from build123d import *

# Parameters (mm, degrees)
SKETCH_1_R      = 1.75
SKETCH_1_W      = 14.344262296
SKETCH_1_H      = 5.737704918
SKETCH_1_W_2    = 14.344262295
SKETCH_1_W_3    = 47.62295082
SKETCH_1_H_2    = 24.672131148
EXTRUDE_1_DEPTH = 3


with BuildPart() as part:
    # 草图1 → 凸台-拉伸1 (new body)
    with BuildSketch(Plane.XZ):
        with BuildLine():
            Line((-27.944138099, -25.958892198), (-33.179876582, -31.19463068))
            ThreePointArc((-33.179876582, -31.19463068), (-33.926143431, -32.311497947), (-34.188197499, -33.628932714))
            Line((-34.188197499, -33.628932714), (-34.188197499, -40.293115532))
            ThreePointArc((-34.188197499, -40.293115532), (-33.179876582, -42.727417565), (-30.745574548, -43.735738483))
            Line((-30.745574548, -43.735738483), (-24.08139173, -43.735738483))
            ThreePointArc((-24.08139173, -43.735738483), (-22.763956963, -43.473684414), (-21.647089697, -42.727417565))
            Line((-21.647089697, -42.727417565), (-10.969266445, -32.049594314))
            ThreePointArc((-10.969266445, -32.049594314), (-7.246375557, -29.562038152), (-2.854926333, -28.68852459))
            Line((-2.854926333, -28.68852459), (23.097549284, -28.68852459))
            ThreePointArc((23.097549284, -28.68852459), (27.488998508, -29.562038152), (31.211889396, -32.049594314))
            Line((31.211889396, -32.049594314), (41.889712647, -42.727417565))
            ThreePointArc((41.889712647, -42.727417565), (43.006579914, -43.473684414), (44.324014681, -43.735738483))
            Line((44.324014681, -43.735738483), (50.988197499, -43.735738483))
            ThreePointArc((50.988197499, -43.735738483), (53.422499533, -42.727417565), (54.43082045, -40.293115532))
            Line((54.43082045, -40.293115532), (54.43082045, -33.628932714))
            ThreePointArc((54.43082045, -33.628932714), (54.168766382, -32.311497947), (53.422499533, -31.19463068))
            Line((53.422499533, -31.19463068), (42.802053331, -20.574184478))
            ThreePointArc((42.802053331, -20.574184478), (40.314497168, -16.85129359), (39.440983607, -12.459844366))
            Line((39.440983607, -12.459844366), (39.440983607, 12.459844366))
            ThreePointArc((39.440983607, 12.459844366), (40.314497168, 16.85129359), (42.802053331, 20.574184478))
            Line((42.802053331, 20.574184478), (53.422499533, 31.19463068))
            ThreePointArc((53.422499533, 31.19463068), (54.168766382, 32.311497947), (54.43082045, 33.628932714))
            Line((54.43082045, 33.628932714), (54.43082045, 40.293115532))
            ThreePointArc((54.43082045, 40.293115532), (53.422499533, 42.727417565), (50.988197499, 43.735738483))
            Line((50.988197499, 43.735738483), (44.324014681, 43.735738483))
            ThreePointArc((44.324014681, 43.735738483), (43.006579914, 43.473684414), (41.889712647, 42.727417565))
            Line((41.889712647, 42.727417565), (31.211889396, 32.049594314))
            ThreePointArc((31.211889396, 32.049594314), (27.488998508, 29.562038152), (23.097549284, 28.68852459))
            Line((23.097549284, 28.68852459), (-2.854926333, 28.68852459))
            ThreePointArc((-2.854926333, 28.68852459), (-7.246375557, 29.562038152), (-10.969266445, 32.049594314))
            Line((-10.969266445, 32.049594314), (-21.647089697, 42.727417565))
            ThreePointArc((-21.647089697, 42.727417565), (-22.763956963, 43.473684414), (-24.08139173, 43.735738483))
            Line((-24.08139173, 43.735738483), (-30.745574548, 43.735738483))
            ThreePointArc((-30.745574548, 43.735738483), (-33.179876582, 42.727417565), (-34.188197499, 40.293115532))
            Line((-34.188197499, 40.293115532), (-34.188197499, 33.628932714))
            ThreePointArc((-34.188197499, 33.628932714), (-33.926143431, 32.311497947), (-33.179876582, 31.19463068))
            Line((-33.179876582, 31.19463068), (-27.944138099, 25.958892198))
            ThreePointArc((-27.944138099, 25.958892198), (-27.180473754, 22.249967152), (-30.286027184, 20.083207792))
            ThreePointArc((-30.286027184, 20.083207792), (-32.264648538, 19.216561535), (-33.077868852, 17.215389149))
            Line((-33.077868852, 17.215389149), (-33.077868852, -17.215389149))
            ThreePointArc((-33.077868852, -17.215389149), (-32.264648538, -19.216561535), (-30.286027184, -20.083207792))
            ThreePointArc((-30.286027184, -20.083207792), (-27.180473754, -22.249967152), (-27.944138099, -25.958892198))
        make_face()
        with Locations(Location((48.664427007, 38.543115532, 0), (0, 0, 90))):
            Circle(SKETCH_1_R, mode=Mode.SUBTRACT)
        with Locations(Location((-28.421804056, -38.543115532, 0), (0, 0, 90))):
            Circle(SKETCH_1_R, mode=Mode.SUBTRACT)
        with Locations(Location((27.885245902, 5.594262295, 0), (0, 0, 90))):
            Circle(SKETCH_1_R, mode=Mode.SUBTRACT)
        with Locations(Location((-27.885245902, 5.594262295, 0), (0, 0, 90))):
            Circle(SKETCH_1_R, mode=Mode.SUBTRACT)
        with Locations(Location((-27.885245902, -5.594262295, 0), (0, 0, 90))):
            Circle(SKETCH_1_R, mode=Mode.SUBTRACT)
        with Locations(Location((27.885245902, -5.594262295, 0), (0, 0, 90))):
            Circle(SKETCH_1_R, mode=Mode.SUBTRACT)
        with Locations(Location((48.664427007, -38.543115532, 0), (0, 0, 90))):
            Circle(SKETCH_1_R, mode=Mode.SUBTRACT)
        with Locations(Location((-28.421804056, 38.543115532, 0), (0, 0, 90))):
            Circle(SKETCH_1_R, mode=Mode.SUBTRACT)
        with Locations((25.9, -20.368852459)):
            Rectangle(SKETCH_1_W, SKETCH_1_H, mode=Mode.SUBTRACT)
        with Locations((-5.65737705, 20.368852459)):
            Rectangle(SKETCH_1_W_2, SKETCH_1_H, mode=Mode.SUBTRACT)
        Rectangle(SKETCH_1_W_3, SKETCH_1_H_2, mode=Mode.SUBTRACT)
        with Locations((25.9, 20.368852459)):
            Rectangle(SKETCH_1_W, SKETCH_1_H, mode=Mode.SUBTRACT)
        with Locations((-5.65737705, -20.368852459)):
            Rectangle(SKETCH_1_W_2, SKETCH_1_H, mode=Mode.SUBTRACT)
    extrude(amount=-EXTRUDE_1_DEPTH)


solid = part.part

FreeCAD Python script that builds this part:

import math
import FreeCAD as App
import Part
import Sketcher
Q = App.Units.Quantity

doc = App.newDocument("Part")
params = doc.addObject("Spreadsheet::Sheet", "Params")
for row, (alias, value) in enumerate([
    ("sketch1_diameter", "3.5 mm"),
    ("pad1_length", "3 mm"),
], start=1):
    params.set(f"A{row}", alias)
    params.set(f"B{row}", "=" + value)
    params.setAlias(f"B{row}", alias)

body = doc.addObject("PartDesign::Body", "Body")

sketch1 = doc.addObject("Sketcher::SketchObject", "Sketch")
body.addObject(sketch1)
sketch1.AttachmentSupport = (doc.XZ_Plane, [""])
sketch1.MapMode = "FlatFace"
sketch1.addGeometry(Part.LineSegment(App.Vector(-27.9, -26, 0), App.Vector(-33.2, -31.2, 0)), False)
sketch1.addGeometry(Part.ArcOfCircle(Part.Circle(App.Vector(-30.7, -33.6, 0), App.Vector(0, 0, 1), 3.4), math.radians(135), math.radians(180)), False)
sketch1.addGeometry(Part.LineSegment(App.Vector(-34.2, -33.6, 0), App.Vector(-34.2, -40.3, 0)), False)
sketch1.addGeometry(Part.ArcOfCircle(Part.Circle(App.Vector(-30.7, -40.3, 0), App.Vector(0, 0, 1), 3.4), math.radians(-180), math.radians(-90)), False)
sketch1.addGeometry(Part.LineSegment(App.Vector(-30.7, -43.7, 0), App.Vector(-24.1, -43.7, 0)), False)
sketch1.addGeometry(Part.ArcOfCircle(Part.Circle(App.Vector(-24.1, -40.3, 0), App.Vector(0, 0, 1), 3.4), math.radians(-90), math.radians(-45)), False)
sketch1.addGeometry(Part.LineSegment(App.Vector(-21.6, -42.7, 0), App.Vector(-11, -32, 0)), False)
sketch1.addGeometry(Part.ArcOfCircle(Part.Circle(App.Vector(-2.9, -40.2, 0), App.Vector(0, 0, 1), 11.5), math.radians(90), math.radians(135)), False)
sketch1.addGeometry(Part.LineSegment(App.Vector(-2.9, -28.7, 0), App.Vector(23.1, -28.7, 0)), False)
sketch1.addGeometry(Part.ArcOfCircle(Part.Circle(App.Vector(23.1, -40.2, 0), App.Vector(0, 0, 1), 11.5), math.radians(45), math.radians(90)), False)
sketch1.addGeometry(Part.LineSegment(App.Vector(31.2, -32, 0), App.Vector(41.9, -42.7, 0)), False)
sketch1.addGeometry(Part.ArcOfCircle(Part.Circle(App.Vector(44.3, -40.3, 0), App.Vector(0, 0, 1), 3.4), math.radians(-135), math.radians(-90)), False)
sketch1.addGeometry(Part.LineSegment(App.Vector(44.3, -43.7, 0), App.Vector(51, -43.7, 0)), False)
sketch1.addGeometry(Part.ArcOfCircle(Part.Circle(App.Vector(51, -40.3, 0), App.Vector(0, 0, 1), 3.4), math.radians(-90), math.radians(0)), False)
sketch1.addGeometry(Part.LineSegment(App.Vector(54.4, -40.3, 0), App.Vector(54.4, -33.6, 0)), False)
sketch1.addGeometry(Part.ArcOfCircle(Part.Circle(App.Vector(51, -33.6, 0), App.Vector(0, 0, 1), 3.4), math.radians(0), math.radians(45)), False)
sketch1.addGeometry(Part.LineSegment(App.Vector(53.4, -31.2, 0), App.Vector(42.8, -20.6, 0)), False)
sketch1.addGeometry(Part.ArcOfCircle(Part.Circle(App.Vector(50.9, -12.5, 0), App.Vector(0, 0, 1), 11.5), math.radians(180), math.radians(225)), False)
sketch1.addGeometry(Part.LineSegment(App.Vector(39.4, -12.5, 0), App.Vector(39.4, 12.5, 0)), False)
sketch1.addGeometry(Part.ArcOfCircle(Part.Circle(App.Vector(50.9, 12.5, 0), App.Vector(0, 0, 1), 11.5), math.radians(135), math.radians(180)), False)
sketch1.addGeometry(Part.LineSegment(App.Vector(42.8, 20.6, 0), App.Vector(53.4, 31.2, 0)), False)
sketch1.addGeometry(Part.ArcOfCircle(Part.Circle(App.Vector(51, 33.6, 0), App.Vector(0, 0, 1), 3.4), math.radians(-45), math.radians(0)), False)
sketch1.addGeometry(Part.LineSegment(App.Vector(54.4, 33.6, 0), App.Vector(54.4, 40.3, 0)), False)
sketch1.addGeometry(Part.ArcOfCircle(Part.Circle(App.Vector(51, 40.3, 0), App.Vector(0, 0, 1), 3.4), math.radians(0), math.radians(90)), False)
sketch1.addGeometry(Part.LineSegment(App.Vector(51, 43.7, 0), App.Vector(44.3, 43.7, 0)), False)
sketch1.addGeometry(Part.ArcOfCircle(Part.Circle(App.Vector(44.3, 40.3, 0), App.Vector(0, 0, 1), 3.4), math.radians(90), math.radians(135)), False)
sketch1.addGeometry(Part.LineSegment(App.Vector(41.9, 42.7, 0), App.Vector(31.2, 32, 0)), False)
sketch1.addGeometry(Part.ArcOfCircle(Part.Circle(App.Vector(23.1, 40.2, 0), App.Vector(0, 0, 1), 11.5), math.radians(-90), math.radians(-45)), False)
sketch1.addGeometry(Part.LineSegment(App.Vector(23.1, 28.7, 0), App.Vector(-2.9, 28.7, 0)), False)
sketch1.addGeometry(Part.ArcOfCircle(Part.Circle(App.Vector(-2.9, 40.2, 0), App.Vector(0, 0, 1), 11.5), math.radians(-135), math.radians(-90)), False)
sketch1.addGeometry(Part.LineSegment(App.Vector(-11, 32, 0), App.Vector(-21.6, 42.7, 0)), False)
sketch1.addGeometry(Part.ArcOfCircle(Part.Circle(App.Vector(-24.1, 40.3, 0), App.Vector(0, 0, 1), 3.4), math.radians(45), math.radians(90)), False)
sketch1.addGeometry(Part.LineSegment(App.Vector(-24.1, 43.7, 0), App.Vector(-30.7, 43.7, 0)), False)
sketch1.addGeometry(Part.ArcOfCircle(Part.Circle(App.Vector(-30.7, 40.3, 0), App.Vector(0, 0, 1), 3.4), math.radians(90), math.radians(180)), False)
sketch1.addGeometry(Part.LineSegment(App.Vector(-34.2, 40.3, 0), App.Vector(-34.2, 33.6, 0)), False)
sketch1.addGeometry(Part.ArcOfCircle(Part.Circle(App.Vector(-30.7, 33.6, 0), App.Vector(0, 0, 1), 3.4), math.radians(180), math.radians(225)), False)
sketch1.addGeometry(Part.LineSegment(App.Vector(-33.2, 31.2, 0), App.Vector(-27.9, 26, 0)), False)
sketch1.addGeometry(Part.ArcOfCircle(Part.Circle(App.Vector(-30.4, 23.5, 0), App.Vector(0, 0, 1), 3.4), math.radians(-88), math.radians(45)), False)
sketch1.addGeometry(Part.ArcOfCircle(Part.Circle(App.Vector(-30.2, 17.2, 0), App.Vector(0, 0, 1), 2.9), math.radians(92), math.radians(180)), False)
sketch1.addGeometry(Part.LineSegment(App.Vector(-33.1, 17.2, 0), App.Vector(-33.1, -17.2, 0)), False)
sketch1.addGeometry(Part.ArcOfCircle(Part.Circle(App.Vector(-30.2, -17.2, 0), App.Vector(0, 0, 1), 2.9), math.radians(180), math.radians(268)), False)
sketch1.addGeometry(Part.ArcOfCircle(Part.Circle(App.Vector(-30.4, -23.5, 0), App.Vector(0, 0, 1), 3.4), math.radians(-45), math.radians(88)), False)
sketch1.addGeometry(Part.Circle(App.Vector(-28.4, -38.5, 0), App.Vector(0, 0, 1), 1.8), False)
sketch1.addGeometry(Part.LineSegment(App.Vector(1.5, -23.2, 0), App.Vector(-12.8, -23.2, 0)), False)
sketch1.addGeometry(Part.LineSegment(App.Vector(-12.8, -23.2, 0), App.Vector(-12.8, -17.5, 0)), False)
sketch1.addGeometry(Part.LineSegment(App.Vector(-12.8, -17.5, 0), App.Vector(1.5, -17.5, 0)), False)
sketch1.addGeometry(Part.LineSegment(App.Vector(1.5, -17.5, 0), App.Vector(1.5, -23.2, 0)), False)
sketch1.addGeometry(Part.Circle(App.Vector(-27.9, -5.6, 0), App.Vector(0, 0, 1), 1.8), False)
sketch1.addGeometry(Part.LineSegment(App.Vector(23.8, -12.3, 0), App.Vector(-23.8, -12.3, 0)), False)
sketch1.addGeometry(Part.LineSegment(App.Vector(-23.8, -12.3, 0), App.Vector(-23.8, 12.3, 0)), False)
sketch1.addGeometry(Part.LineSegment(App.Vector(-23.8, 12.3, 0), App.Vector(23.8, 12.3, 0)), False)
sketch1.addGeometry(Part.LineSegment(App.Vector(23.8, 12.3, 0), App.Vector(23.8, -12.3, 0)), False)
sketch1.addGeometry(Part.LineSegment(App.Vector(33.1, -23.2, 0), App.Vector(18.7, -23.2, 0)), False)
sketch1.addGeometry(Part.LineSegment(App.Vector(18.7, -23.2, 0), App.Vector(18.7, -17.5, 0)), False)
sketch1.addGeometry(Part.LineSegment(App.Vector(18.7, -17.5, 0), App.Vector(33.1, -17.5, 0)), False)
sketch1.addGeometry(Part.LineSegment(App.Vector(33.1, -17.5, 0), App.Vector(33.1, -23.2, 0)), False)
sketch1.addGeometry(Part.Circle(App.Vector(48.7, -38.5, 0), App.Vector(0, 0, 1), 1.8), False)
sketch1.addGeometry(Part.Circle(App.Vector(27.9, -5.6, 0), App.Vector(0, 0, 1), 1.8), False)
sketch1.addGeometry(Part.Circle(App.Vector(-27.9, 5.6, 0), App.Vector(0, 0, 1), 1.8), False)
sketch1.addGeometry(Part.Circle(App.Vector(-28.4, 38.5, 0), App.Vector(0, 0, 1), 1.8), False)
sketch1.addGeometry(Part.LineSegment(App.Vector(1.5, 17.5, 0), App.Vector(-12.8, 17.5, 0)), False)
sketch1.addGeometry(Part.LineSegment(App.Vector(-12.8, 17.5, 0), App.Vector(-12.8, 23.2, 0)), False)
sketch1.addGeometry(Part.LineSegment(App.Vector(-12.8, 23.2, 0), App.Vector(1.5, 23.2, 0)), False)
sketch1.addGeometry(Part.LineSegment(App.Vector(1.5, 23.2, 0), App.Vector(1.5, 17.5, 0)), False)
sketch1.addGeometry(Part.Circle(App.Vector(27.9, 5.6, 0), App.Vector(0, 0, 1), 1.8), False)
sketch1.addGeometry(Part.LineSegment(App.Vector(33.1, 17.5, 0), App.Vector(18.7, 17.5, 0)), False)
sketch1.addGeometry(Part.LineSegment(App.Vector(18.7, 17.5, 0), App.Vector(18.7, 23.2, 0)), False)
sketch1.addGeometry(Part.LineSegment(App.Vector(18.7, 23.2, 0), App.Vector(33.1, 23.2, 0)), False)
sketch1.addGeometry(Part.LineSegment(App.Vector(33.1, 23.2, 0), App.Vector(33.1, 17.5, 0)), False)
sketch1.addGeometry(Part.Circle(App.Vector(48.7, 38.5, 0), App.Vector(0, 0, 1), 1.8), False)
sketch1.addConstraint(Sketcher.Constraint("Tangent", 0, 2, 1, 1))
sketch1.addConstraint(Sketcher.Constraint("Tangent", 1, 2, 2, 1))
sketch1.addConstraint(Sketcher.Constraint("Tangent", 2, 2, 3, 1))
sketch1.addConstraint(Sketcher.Constraint("Tangent", 3, 2, 4, 1))
sketch1.addConstraint(Sketcher.Constraint("Tangent", 4, 2, 5, 1))
sketch1.addConstraint(Sketcher.Constraint("Tangent", 5, 2, 6, 1))
sketch1.addConstraint(Sketcher.Constraint("Tangent", 6, 2, 7, 2))
sketch1.addConstraint(Sketcher.Constraint("Tangent", 7, 1, 8, 1))
sketch1.addConstraint(Sketcher.Constraint("Tangent", 8, 2, 9, 2))
sketch1.addConstraint(Sketcher.Constraint("Tangent", 9, 1, 10, 1))
sketch1.addConstraint(Sketcher.Constraint("Tangent", 10, 2, 11, 1))
sketch1.addConstraint(Sketcher.Constraint("Tangent", 11, 2, 12, 1))
sketch1.addConstraint(Sketcher.Constraint("Tangent", 12, 2, 13, 1))
sketch1.addConstraint(Sketcher.Constraint("Tangent", 13, 2, 14, 1))
sketch1.addConstraint(Sketcher.Constraint("Tangent", 14, 2, 15, 1))
sketch1.addConstraint(Sketcher.Constraint("Tangent", 15, 2, 16, 1))
sketch1.addConstraint(Sketcher.Constraint("Tangent", 16, 2, 17, 2))
sketch1.addConstraint(Sketcher.Constraint("Tangent", 17, 1, 18, 1))
sketch1.addConstraint(Sketcher.Constraint("Tangent", 18, 2, 19, 2))
sketch1.addConstraint(Sketcher.Constraint("Tangent", 19, 1, 20, 1))
sketch1.addConstraint(Sketcher.Constraint("Tangent", 20, 2, 21, 1))
sketch1.addConstraint(Sketcher.Constraint("Tangent", 21, 2, 22, 1))
sketch1.addConstraint(Sketcher.Constraint("Tangent", 22, 2, 23, 1))
sketch1.addConstraint(Sketcher.Constraint("Tangent", 23, 2, 24, 1))
sketch1.addConstraint(Sketcher.Constraint("Tangent", 24, 2, 25, 1))
sketch1.addConstraint(Sketcher.Constraint("Tangent", 25, 2, 26, 1))
sketch1.addConstraint(Sketcher.Constraint("Tangent", 26, 2, 27, 2))
sketch1.addConstraint(Sketcher.Constraint("Tangent", 27, 1, 28, 1))
sketch1.addConstraint(Sketcher.Constraint("Tangent", 28, 2, 29, 2))
sketch1.addConstraint(Sketcher.Constraint("Tangent", 29, 1, 30, 1))
sketch1.addConstraint(Sketcher.Constraint("Tangent", 30, 2, 31, 1))
sketch1.addConstraint(Sketcher.Constraint("Tangent", 31, 2, 32, 1))
sketch1.addConstraint(Sketcher.Constraint("Tangent", 32, 2, 33, 1))
sketch1.addConstraint(Sketcher.Constraint("Tangent", 33, 2, 34, 1))
sketch1.addConstraint(Sketcher.Constraint("Tangent", 34, 2, 35, 1))
sketch1.addConstraint(Sketcher.Constraint("Tangent", 35, 2, 36, 1))
sketch1.addConstraint(Sketcher.Constraint("Tangent", 36, 2, 37, 2))
sketch1.addConstraint(Sketcher.Constraint("Tangent", 37, 1, 38, 1))
sketch1.addConstraint(Sketcher.Constraint("Tangent", 38, 2, 39, 1))
sketch1.addConstraint(Sketcher.Constraint("Tangent", 39, 2, 40, 1))
sketch1.addConstraint(Sketcher.Constraint("Tangent", 40, 2, 41, 2))
sketch1.addConstraint(Sketcher.Constraint("Tangent", 41, 1, 0, 1))
sketch1.addConstraint(Sketcher.Constraint("Coincident", 43, 2, 44, 1))
sketch1.addConstraint(Sketcher.Constraint("Coincident", 44, 2, 45, 1))
sketch1.addConstraint(Sketcher.Constraint("Coincident", 45, 2, 46, 1))
sketch1.addConstraint(Sketcher.Constraint("Coincident", 46, 2, 43, 1))
sketch1.addConstraint(Sketcher.Constraint("Coincident", 48, 2, 49, 1))
sketch1.addConstraint(Sketcher.Constraint("Coincident", 49, 2, 50, 1))
sketch1.addConstraint(Sketcher.Constraint("Coincident", 50, 2, 51, 1))
sketch1.addConstraint(Sketcher.Constraint("Coincident", 51, 2, 48, 1))
sketch1.addConstraint(Sketcher.Constraint("Coincident", 52, 2, 53, 1))
sketch1.addConstraint(Sketcher.Constraint("Coincident", 53, 2, 54, 1))
sketch1.addConstraint(Sketcher.Constraint("Coincident", 54, 2, 55, 1))
sketch1.addConstraint(Sketcher.Constraint("Coincident", 55, 2, 52, 1))
sketch1.addConstraint(Sketcher.Constraint("Coincident", 60, 2, 61, 1))
sketch1.addConstraint(Sketcher.Constraint("Coincident", 61, 2, 62, 1))
sketch1.addConstraint(Sketcher.Constraint("Coincident", 62, 2, 63, 1))
sketch1.addConstraint(Sketcher.Constraint("Coincident", 63, 2, 60, 1))
sketch1.addConstraint(Sketcher.Constraint("Coincident", 65, 2, 66, 1))
sketch1.addConstraint(Sketcher.Constraint("Coincident", 66, 2, 67, 1))
sketch1.addConstraint(Sketcher.Constraint("Coincident", 67, 2, 68, 1))
sketch1.addConstraint(Sketcher.Constraint("Coincident", 68, 2, 65, 1))
sketch1.addConstraint(Sketcher.Constraint("Vertical", 2))
sketch1.addConstraint(Sketcher.Constraint("Horizontal", 4))
sketch1.addConstraint(Sketcher.Constraint("Horizontal", 8))
sketch1.addConstraint(Sketcher.Constraint("Horizontal", 12))
sketch1.addConstraint(Sketcher.Constraint("Vertical", 14))
sketch1.addConstraint(Sketcher.Constraint("Vertical", 18))
sketch1.addConstraint(Sketcher.Constraint("Vertical", 22))
sketch1.addConstraint(Sketcher.Constraint("Horizontal", 24))
sketch1.addConstraint(Sketcher.Constraint("Horizontal", 28))
sketch1.addConstraint(Sketcher.Constraint("Horizontal", 32))
sketch1.addConstraint(Sketcher.Constraint("Vertical", 34))
sketch1.addConstraint(Sketcher.Constraint("Vertical", 39))
sketch1.addConstraint(Sketcher.Constraint("Horizontal", 43))
sketch1.addConstraint(Sketcher.Constraint("Vertical", 44))
sketch1.addConstraint(Sketcher.Constraint("Horizontal", 45))
sketch1.addConstraint(Sketcher.Constraint("Vertical", 46))
sketch1.addConstraint(Sketcher.Constraint("Horizontal", 48))
sketch1.addConstraint(Sketcher.Constraint("Vertical", 49))
sketch1.addConstraint(Sketcher.Constraint("Horizontal", 50))
sketch1.addConstraint(Sketcher.Constraint("Vertical", 51))
sketch1.addConstraint(Sketcher.Constraint("Horizontal", 52))
sketch1.addConstraint(Sketcher.Constraint("Vertical", 53))
sketch1.addConstraint(Sketcher.Constraint("Horizontal", 54))
sketch1.addConstraint(Sketcher.Constraint("Vertical", 55))
sketch1.addConstraint(Sketcher.Constraint("Horizontal", 60))
sketch1.addConstraint(Sketcher.Constraint("Vertical", 61))
sketch1.addConstraint(Sketcher.Constraint("Horizontal", 62))
sketch1.addConstraint(Sketcher.Constraint("Vertical", 63))
sketch1.addConstraint(Sketcher.Constraint("Horizontal", 65))
sketch1.addConstraint(Sketcher.Constraint("Vertical", 66))
sketch1.addConstraint(Sketcher.Constraint("Horizontal", 67))
sketch1.addConstraint(Sketcher.Constraint("Vertical", 68))
sketch1.addConstraint(Sketcher.Constraint("Equal", 1, 3))
sketch1.addConstraint(Sketcher.Constraint("Equal", 3, 5))
sketch1.addConstraint(Sketcher.Constraint("Equal", 7, 9))
sketch1.addConstraint(Sketcher.Constraint("Equal", 5, 11))
sketch1.addConstraint(Sketcher.Constraint("Equal", 11, 13))
sketch1.addConstraint(Sketcher.Constraint("Equal", 13, 15))
sketch1.addConstraint(Sketcher.Constraint("Equal", 9, 17))
sketch1.addConstraint(Sketcher.Constraint("Equal", 17, 19))
sketch1.addConstraint(Sketcher.Constraint("Equal", 15, 21))
sketch1.addConstraint(Sketcher.Constraint("Equal", 21, 23))
sketch1.addConstraint(Sketcher.Constraint("Equal", 23, 25))
sketch1.addConstraint(Sketcher.Constraint("Equal", 19, 27))
sketch1.addConstraint(Sketcher.Constraint("Equal", 27, 29))
sketch1.addConstraint(Sketcher.Constraint("Equal", 25, 31))
sketch1.addConstraint(Sketcher.Constraint("Equal", 31, 33))
sketch1.addConstraint(Sketcher.Constraint("Equal", 33, 35))
sketch1.addConstraint(Sketcher.Constraint("Equal", 35, 37))
sketch1.addConstraint(Sketcher.Constraint("Equal", 38, 40))
sketch1.addConstraint(Sketcher.Constraint("Equal", 37, 41))
sketch1.addConstraint(Sketcher.Constraint("Equal", 42, 47))
sketch1.addConstraint(Sketcher.Constraint("Equal", 47, 56))
sketch1.addConstraint(Sketcher.Constraint("Equal", 56, 57))
sketch1.addConstraint(Sketcher.Constraint("Equal", 57, 58))
sketch1.addConstraint(Sketcher.Constraint("Equal", 58, 59))
sketch1.addConstraint(Sketcher.Constraint("Equal", 59, 64))
sketch1.addConstraint(Sketcher.Constraint("Equal", 64, 69))
sketch1.addConstraint(Sketcher.Constraint("Symmetric", 57, 3, 58, 3, -1, 1))
sketch1.addConstraint(Sketcher.Constraint("Symmetric", 47, 3, 64, 3, -1, 1))
sketch1.addConstraint(Sketcher.Constraint("Symmetric", 48, 2, 50, 2, -1, 1))
sketch1.addConstraint(Sketcher.Constraint("Symmetric", 47, 3, 57, 3, -2))
sketch1.addConstraint(Sketcher.Constraint("Symmetric", 15, 3, 21, 3, -1))
sketch1.addConstraint(Sketcher.Constraint("Symmetric", 11, 3, 25, 3, -1))
sketch1.addConstraint(Sketcher.Constraint("Symmetric", 9, 3, 27, 3, -1))
sketch1.addConstraint(Sketcher.Constraint("Symmetric", 5, 3, 31, 3, -1))
sketch1.addConstraint(Sketcher.Constraint("Symmetric", 1, 3, 35, 3, -1))
sketch1.addConstraint(Sketcher.Constraint("Symmetric", 37, 3, 41, 3, -1))
sketch1.addConstraint(Sketcher.Constraint("Symmetric", 42, 3, 59, 3, -1))
sketch1.addConstraint(Sketcher.Constraint("Symmetric", 56, 3, 69, 3, -1))
sketch1.addConstraint(Sketcher.Constraint("Symmetric", 44, 2, 60, 2, -1))
sketch1.addConstraint(Sketcher.Constraint("Symmetric", 46, 2, 62, 2, -1))
sketch1.addConstraint(Sketcher.Constraint("Symmetric", 53, 2, 65, 2, -1))
sketch1.addConstraint(Sketcher.Constraint("Symmetric", 55, 2, 67, 2, -1))
sketch1.addConstraint(Sketcher.Constraint("Parallel", 0, 6))
sketch1.addConstraint(Sketcher.Constraint("Perpendicular", 6, 10))
sketch1.addConstraint(Sketcher.Constraint("Parallel", 10, 16))
sketch1.addConstraint(Sketcher.Constraint("Perpendicular", 16, 20))
sketch1.addConstraint(Sketcher.Constraint("Parallel", 20, 26))
sketch1.addConstraint(Sketcher.Constraint("Perpendicular", 26, 30))
sketch1.addConstraint(Sketcher.Constraint("Horizontal", 5, 3, 11, 3))
sketch1.addConstraint(Sketcher.Constraint("Horizontal", 1, 3, 15, 3))
sketch1.addConstraint(Sketcher.Constraint("Horizontal", 42, 3, 56, 3))
sketch1.addConstraint(Sketcher.Constraint("Horizontal", 46, 2, 52, 2))
sketch1.addConstraint(Sketcher.Constraint("Horizontal", 45, 2, 53, 2))
sketch1.addConstraint(Sketcher.Constraint("Equal", 4, 12))
sketch1.addConstraint(Sketcher.Constraint("Equal", 45, 52))
sketch1.addConstraint(Sketcher.Constraint("Equal", 32, 2))
sketch1.addConstraint(Sketcher.Constraint("Diameter", 42, Q("3.5 mm")))
sketch1.addConstraint(Sketcher.Constraint("DistanceY", 44, 2, -1, 1, Q("17.5 mm")))
sketch1.addConstraint(Sketcher.Constraint("Radius", 7, Q("11.47541 mm")))
sketch1.addConstraint(Sketcher.Constraint("Radius", 1, Q("3.442623 mm")))
sketch1.addConstraint(Sketcher.Constraint("Radius", 38, Q("2.868852 mm")))
sketch1.addConstraint(Sketcher.Constraint("DistanceX", 48, 2, 48, 1, Q("47.622951 mm")))
sketch1.addConstraint(Sketcher.Constraint("DistanceY", 18, 1, 18, 2, Q("24.919689 mm")))
sketch1.addConstraint(Sketcher.Constraint("DistanceY", 39, 2, 39, 1, Q("34.430778 mm")))
sketch1.addConstraint(Sketcher.Constraint("DistanceY", 49, 1, 49, 2, Q("24.672131 mm")))
sketch1.addConstraint(Sketcher.Constraint("DistanceX", -1, 1, 15, 2, Q("53.4225 mm")))
sketch1.addConstraint(Sketcher.Constraint("Distance", 16, Q("15.019579 mm")))
sketch1.addConstraint(Sketcher.Constraint("DistanceX", 4, 1, 4, 2, Q("6.664183 mm")))
sketch1.addConstraint(Sketcher.Constraint("DistanceX", 8, 1, 8, 2, Q("25.952476 mm")))
sketch1.addConstraint(Sketcher.Constraint("DistanceX", 43, 2, 43, 1, Q("14.344262 mm")))
sketch1.addConstraint(Sketcher.Constraint("DistanceY", 44, 1, 44, 2, Q("5.737705 mm")))
sketch1.addConstraint(Sketcher.Constraint("DistanceX", 5, 3, -1, 1, Q("24.081392 mm")))
sketch1.addConstraint(Sketcher.Constraint("DistanceX", 37, 3, -1, 1, Q("30.37844 mm")))
sketch1.addConstraint(Sketcher.Constraint("DistanceX", 43, 2, -1, 1, Q("12.829508 mm")))
sketch1.addConstraint(Sketcher.Constraint("DistanceX", -1, 1, 52, 2, Q("18.727869 mm")))
sketch1.addConstraint(Sketcher.Constraint("DistanceX", 42, 3, -1, 1, Q("28.421804 mm")))
sketch1.addConstraint(Sketcher.Constraint("DistanceY", 42, 3, -1, 1, Q("38.543116 mm")))
sketch1.addConstraint(Sketcher.Constraint("DistanceX", 47, 3, -1, 1, Q("27.885246 mm")))
sketch1.addConstraint(Sketcher.Constraint("DistanceY", 47, 3, -1, 1, Q("5.594262 mm")))
sketch1.addConstraint(Sketcher.Constraint("DistanceX", -1, 1, 56, 3, Q("48.664427 mm")))
sketch1.setExpression("Constraints[150]", "Params.sketch1_diameter")
pad1 = doc.addObject("PartDesign::Pad", "Pad")
body.addObject(pad1)
pad1.Profile = sketch1
pad1.setExpression("Length", "Params.pad1_length")
pad1.Reversed = True

doc.recompute()
